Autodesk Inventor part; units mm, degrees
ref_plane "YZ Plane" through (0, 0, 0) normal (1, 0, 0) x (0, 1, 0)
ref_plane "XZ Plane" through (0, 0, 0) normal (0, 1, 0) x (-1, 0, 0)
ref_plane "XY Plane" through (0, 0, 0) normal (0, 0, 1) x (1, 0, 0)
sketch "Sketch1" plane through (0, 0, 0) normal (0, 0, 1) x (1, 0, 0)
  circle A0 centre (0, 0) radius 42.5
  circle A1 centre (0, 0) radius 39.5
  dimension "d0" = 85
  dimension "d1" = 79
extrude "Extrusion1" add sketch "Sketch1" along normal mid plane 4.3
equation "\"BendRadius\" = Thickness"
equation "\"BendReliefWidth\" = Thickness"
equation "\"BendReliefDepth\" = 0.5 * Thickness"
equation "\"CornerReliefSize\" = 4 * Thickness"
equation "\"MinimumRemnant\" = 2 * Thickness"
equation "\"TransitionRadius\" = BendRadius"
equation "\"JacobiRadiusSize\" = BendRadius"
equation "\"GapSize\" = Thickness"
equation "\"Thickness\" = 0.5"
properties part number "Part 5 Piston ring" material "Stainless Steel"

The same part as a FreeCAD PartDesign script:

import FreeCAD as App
import Part
import Sketcher

V = App.Vector
Q = App.Units.Quantity

doc = App.newDocument("Part")
params = doc.addObject("Spreadsheet::Sheet", "Params")
for row, (alias, value) in enumerate([
    ("sketch1_diameter", "85 mm"),
    ("sketch1_diameter2", "79 mm"),
    ("pad1_length", "4.3 mm"),
], start=1):
    params.set(f"A{row}", alias)
    params.set(f"B{row}", "=" + value)
    params.setAlias(f"B{row}", alias)

body = doc.addObject("PartDesign::Body", "Body")

# Sketch on XY plane
sketch1 = body.newObject("Sketcher::SketchObject", "Sketch")
sketch1.AttachmentSupport = (doc.getObject("XY_Plane"), [""])
sketch1.MapMode = "FlatFace"
sketch1.addGeometry([
    Part.Circle(V(0, 0, 0), V(0, 0, 1), 42),
    Part.Circle(V(0, 0, 0), V(0, 0, 1), 40),
], False)
sketch1.addConstraint([
    Sketcher.Constraint("Coincident", 0, 3, -1, 1),
    Sketcher.Constraint("Coincident", 1, 3, -1, 1),
    Sketcher.Constraint("Diameter", 0, Q("85 mm")),
    Sketcher.Constraint("Diameter", 1, Q("79 mm")),
])
sketch1.setExpression("Constraints[2]", "Params.sketch1_diameter")
sketch1.setExpression("Constraints[3]", "Params.sketch1_diameter2")
pad1 = body.newObject("PartDesign::Pad", "Pad")
pad1.Profile = sketch1
pad1.setExpression("Length", "Params.pad1_length")
pad1.Midplane = True

doc.recompute()
